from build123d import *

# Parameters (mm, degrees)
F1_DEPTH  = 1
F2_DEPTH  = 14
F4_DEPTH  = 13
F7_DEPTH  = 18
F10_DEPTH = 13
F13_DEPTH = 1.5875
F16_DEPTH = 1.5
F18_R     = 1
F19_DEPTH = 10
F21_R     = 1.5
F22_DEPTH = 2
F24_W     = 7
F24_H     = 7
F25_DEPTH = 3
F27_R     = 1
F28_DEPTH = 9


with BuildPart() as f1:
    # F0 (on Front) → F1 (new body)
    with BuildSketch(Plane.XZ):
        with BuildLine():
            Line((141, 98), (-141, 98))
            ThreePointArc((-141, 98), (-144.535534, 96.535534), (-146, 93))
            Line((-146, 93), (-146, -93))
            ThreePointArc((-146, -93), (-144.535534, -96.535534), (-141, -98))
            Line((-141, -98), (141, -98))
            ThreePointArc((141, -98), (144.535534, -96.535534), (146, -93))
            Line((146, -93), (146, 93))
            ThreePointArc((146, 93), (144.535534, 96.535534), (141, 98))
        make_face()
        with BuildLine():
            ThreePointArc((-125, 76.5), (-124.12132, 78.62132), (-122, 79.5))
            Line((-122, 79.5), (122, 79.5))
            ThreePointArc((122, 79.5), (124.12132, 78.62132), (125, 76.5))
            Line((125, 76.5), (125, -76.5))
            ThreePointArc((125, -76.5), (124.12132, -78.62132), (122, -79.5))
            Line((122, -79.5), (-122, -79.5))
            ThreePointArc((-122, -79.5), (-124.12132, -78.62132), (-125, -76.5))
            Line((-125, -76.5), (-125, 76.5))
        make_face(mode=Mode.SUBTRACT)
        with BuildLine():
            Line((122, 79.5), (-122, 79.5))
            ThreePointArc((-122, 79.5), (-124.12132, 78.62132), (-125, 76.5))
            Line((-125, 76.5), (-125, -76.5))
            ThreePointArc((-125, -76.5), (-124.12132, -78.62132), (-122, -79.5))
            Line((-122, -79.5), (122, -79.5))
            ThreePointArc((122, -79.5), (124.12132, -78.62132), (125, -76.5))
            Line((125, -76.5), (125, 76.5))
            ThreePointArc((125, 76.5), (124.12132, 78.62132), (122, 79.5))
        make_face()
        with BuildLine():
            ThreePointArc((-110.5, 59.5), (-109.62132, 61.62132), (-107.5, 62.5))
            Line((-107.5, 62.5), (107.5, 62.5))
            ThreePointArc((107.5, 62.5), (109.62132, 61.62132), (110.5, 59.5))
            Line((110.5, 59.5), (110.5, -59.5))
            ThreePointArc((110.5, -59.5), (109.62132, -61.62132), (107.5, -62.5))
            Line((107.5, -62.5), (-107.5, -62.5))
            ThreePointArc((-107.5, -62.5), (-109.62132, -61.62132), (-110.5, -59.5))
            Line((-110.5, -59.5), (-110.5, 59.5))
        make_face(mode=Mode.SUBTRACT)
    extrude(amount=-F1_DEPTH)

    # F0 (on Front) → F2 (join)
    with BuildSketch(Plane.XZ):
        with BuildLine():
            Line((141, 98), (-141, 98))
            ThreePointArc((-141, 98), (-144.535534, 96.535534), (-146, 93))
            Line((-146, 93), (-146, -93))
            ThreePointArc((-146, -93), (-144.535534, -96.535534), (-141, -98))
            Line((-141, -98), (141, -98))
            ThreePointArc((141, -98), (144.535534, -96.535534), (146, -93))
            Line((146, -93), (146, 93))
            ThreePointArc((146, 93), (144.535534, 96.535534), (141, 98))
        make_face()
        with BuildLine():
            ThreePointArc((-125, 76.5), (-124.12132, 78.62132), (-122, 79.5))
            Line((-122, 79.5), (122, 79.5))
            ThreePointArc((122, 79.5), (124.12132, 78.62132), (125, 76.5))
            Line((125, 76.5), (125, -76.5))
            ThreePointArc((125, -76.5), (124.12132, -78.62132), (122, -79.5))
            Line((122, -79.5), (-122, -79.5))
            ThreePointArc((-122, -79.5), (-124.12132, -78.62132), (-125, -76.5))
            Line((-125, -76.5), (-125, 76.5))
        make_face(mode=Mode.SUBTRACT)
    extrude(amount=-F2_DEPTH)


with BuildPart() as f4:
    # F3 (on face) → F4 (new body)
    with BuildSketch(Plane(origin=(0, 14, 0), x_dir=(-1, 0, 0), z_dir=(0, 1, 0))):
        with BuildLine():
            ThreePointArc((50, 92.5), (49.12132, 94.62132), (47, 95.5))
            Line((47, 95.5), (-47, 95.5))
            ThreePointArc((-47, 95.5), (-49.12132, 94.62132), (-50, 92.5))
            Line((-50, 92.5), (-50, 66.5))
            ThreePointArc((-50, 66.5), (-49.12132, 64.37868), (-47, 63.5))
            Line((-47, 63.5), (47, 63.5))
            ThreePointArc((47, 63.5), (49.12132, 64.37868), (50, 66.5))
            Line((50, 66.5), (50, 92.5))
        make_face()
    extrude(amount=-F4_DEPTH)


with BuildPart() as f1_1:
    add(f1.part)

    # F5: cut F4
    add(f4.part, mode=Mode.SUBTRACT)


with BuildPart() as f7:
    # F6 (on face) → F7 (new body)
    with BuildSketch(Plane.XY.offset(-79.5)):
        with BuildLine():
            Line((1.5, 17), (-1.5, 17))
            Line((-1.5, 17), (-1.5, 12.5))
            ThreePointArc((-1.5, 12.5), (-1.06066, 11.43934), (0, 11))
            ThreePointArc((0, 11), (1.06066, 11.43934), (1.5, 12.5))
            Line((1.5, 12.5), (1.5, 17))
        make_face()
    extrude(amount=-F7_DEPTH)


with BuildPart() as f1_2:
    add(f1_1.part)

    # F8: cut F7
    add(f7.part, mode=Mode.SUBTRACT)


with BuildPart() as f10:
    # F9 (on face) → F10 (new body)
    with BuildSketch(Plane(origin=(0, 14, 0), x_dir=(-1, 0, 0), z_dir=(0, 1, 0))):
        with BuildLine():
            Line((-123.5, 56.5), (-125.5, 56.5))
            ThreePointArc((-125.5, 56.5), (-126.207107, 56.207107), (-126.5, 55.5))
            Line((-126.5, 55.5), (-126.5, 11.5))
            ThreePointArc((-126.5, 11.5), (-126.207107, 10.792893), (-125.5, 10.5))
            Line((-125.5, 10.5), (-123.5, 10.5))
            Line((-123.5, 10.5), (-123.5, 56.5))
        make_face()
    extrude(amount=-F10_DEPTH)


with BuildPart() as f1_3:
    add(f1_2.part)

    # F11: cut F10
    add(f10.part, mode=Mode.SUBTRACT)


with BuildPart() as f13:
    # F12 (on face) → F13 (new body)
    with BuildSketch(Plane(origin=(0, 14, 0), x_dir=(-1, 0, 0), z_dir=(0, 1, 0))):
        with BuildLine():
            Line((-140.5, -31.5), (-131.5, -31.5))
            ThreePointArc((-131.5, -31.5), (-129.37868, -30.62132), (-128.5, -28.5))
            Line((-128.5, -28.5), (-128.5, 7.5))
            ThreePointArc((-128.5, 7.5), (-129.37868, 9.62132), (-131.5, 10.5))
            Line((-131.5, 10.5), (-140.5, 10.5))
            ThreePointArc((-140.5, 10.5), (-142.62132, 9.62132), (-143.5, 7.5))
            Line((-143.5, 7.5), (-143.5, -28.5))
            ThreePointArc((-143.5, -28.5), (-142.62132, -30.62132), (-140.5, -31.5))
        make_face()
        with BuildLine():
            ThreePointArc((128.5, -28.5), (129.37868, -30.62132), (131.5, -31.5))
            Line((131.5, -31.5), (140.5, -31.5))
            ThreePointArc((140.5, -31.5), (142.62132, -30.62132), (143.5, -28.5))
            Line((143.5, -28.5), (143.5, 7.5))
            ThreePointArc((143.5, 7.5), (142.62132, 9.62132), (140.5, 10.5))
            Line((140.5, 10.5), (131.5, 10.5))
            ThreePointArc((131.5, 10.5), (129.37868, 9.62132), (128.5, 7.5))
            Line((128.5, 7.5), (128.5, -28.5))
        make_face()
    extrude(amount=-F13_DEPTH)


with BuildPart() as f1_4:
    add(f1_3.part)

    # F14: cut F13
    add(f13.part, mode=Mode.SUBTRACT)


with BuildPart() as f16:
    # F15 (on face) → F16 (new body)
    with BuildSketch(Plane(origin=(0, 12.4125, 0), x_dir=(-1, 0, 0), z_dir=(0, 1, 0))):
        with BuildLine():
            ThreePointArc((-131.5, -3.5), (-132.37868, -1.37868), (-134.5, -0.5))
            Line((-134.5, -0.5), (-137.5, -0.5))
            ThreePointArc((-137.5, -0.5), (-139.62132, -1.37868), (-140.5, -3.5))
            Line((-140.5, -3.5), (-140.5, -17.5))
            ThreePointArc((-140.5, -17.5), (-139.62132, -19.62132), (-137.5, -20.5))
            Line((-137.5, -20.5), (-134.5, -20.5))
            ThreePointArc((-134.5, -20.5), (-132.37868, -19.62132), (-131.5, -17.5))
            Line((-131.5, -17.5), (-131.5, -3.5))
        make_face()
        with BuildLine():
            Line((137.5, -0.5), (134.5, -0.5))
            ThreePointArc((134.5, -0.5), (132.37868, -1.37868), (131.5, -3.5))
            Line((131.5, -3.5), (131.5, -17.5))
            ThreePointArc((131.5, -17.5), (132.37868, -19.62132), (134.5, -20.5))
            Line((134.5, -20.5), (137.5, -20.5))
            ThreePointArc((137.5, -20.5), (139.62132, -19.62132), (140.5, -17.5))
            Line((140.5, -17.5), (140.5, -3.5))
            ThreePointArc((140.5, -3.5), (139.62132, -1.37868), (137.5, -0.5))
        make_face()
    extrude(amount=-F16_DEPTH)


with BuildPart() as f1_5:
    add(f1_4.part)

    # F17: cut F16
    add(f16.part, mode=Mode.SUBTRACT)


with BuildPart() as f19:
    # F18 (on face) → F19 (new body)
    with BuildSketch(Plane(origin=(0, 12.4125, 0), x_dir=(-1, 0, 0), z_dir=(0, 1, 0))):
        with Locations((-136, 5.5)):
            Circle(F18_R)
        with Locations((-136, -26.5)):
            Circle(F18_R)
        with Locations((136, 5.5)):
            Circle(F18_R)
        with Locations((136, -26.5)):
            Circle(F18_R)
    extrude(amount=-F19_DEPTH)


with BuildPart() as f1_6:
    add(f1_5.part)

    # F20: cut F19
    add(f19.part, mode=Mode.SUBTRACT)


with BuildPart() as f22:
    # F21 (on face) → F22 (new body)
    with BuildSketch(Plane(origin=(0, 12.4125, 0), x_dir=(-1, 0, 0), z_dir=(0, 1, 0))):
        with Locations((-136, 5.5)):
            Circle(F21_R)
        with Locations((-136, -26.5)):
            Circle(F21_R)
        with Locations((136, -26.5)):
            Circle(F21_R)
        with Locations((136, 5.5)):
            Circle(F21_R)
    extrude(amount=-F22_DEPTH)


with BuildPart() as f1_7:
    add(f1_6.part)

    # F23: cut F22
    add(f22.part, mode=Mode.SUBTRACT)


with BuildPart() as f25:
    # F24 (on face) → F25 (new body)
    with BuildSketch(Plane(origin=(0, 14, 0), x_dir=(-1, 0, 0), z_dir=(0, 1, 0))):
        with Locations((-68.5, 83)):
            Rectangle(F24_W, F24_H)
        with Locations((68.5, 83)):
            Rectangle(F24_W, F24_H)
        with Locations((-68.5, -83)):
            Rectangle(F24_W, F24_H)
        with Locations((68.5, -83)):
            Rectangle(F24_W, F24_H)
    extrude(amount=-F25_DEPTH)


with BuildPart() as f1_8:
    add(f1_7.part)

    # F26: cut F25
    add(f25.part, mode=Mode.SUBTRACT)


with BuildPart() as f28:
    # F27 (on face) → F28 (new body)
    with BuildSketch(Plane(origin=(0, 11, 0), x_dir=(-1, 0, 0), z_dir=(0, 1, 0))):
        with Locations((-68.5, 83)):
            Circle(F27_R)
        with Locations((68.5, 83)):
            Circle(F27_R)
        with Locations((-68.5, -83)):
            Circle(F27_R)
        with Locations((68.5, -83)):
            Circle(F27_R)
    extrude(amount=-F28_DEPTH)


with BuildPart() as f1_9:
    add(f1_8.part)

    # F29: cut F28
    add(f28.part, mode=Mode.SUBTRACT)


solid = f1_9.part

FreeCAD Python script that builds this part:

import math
import FreeCAD as App
import Part
import Sketcher

V = App.Vector
Q = App.Units.Quantity

doc = App.newDocument("Part")
body = doc.addObject("PartDesign::Body", "Body")

sketch1 = doc.addObject("Sketcher::SketchObject", "Sketch")
body.addObject(sketch1)
sketch1.AttachmentSupport = (doc.XZ_Plane, [""])
sketch1.MapMode = "FlatFace"
sketch1.addGeometry([
    Part.LineSegment(V(141, 98, 0), V(-141, 98, 0)),
    Part.ArcOfCircle(Part.Circle(V(-141, 93, 0), V(0, 0, 1), 5), math.radians(90), math.radians(180)),
    Part.LineSegment(V(-146, 93, 0), V(-146, -93, 0)),
    Part.ArcOfCircle(Part.Circle(V(-141, -93, 0), V(0, 0, 1), 5), math.radians(180), math.radians(270)),
    Part.LineSegment(V(-141, -98, 0), V(141, -98, 0)),
    Part.ArcOfCircle(Part.Circle(V(141, -93, 0), V(0, 0, 1), 5), math.radians(-90), math.radians(0)),
    Part.LineSegment(V(146, -93, 0), V(146, 93, 0)),
    Part.ArcOfCircle(Part.Circle(V(141, 93, 0), V(0, 0, 1), 5), math.radians(0), math.radians(90)),
    Part.LineSegment(V(-110.5, -59.5, 0), V(-110.5, 59.5, 0)),
    Part.ArcOfCircle(Part.Circle(V(-107.5, 59.5, 0), V(0, 0, 1), 3), math.radians(90), math.radians(180)),
    Part.LineSegment(V(-107.5, 62.5, 0), V(107.5, 62.5, 0)),
    Part.ArcOfCircle(Part.Circle(V(107.5, 59.5, 0), V(0, 0, 1), 3), math.radians(0), math.radians(90)),
    Part.LineSegment(V(110.5, 59.5, 0), V(110.5, -59.5, 0)),
    Part.ArcOfCircle(Part.Circle(V(107.5, -59.5, 0), V(0, 0, 1), 3), math.radians(-90), math.radians(0)),
    Part.LineSegment(V(107.5, -62.5, 0), V(-107.5, -62.5, 0)),
    Part.ArcOfCircle(Part.Circle(V(-107.5, -59.5, 0), V(0, 0, 1), 3), math.radians(-180), math.radians(-90)),
], False)
sketch1.addConstraint([
    Sketcher.Constraint("Tangent", 0, 2, 1, 1),
    Sketcher.Constraint("Tangent", 1, 2, 2, 1),
    Sketcher.Constraint("Tangent", 2, 2, 3, 1),
    Sketcher.Constraint("Tangent", 3, 2, 4, 1),
    Sketcher.Constraint("Tangent", 4, 2, 5, 1),
    Sketcher.Constraint("Tangent", 5, 2, 6, 1),
    Sketcher.Constraint("Tangent", 6, 2, 7, 1),
    Sketcher.Constraint("Tangent", 7, 2, 0, 1),
    Sketcher.Constraint("Tangent", 8, 2, 9, 2),
    Sketcher.Constraint("Tangent", 9, 1, 10, 1),
    Sketcher.Constraint("Tangent", 10, 2, 11, 2),
    Sketcher.Constraint("Tangent", 11, 1, 12, 1),
    Sketcher.Constraint("Tangent", 12, 2, 13, 2),
    Sketcher.Constraint("Tangent", 13, 1, 14, 1),
    Sketcher.Constraint("Tangent", 14, 2, 15, 2),
    Sketcher.Constraint("Tangent", 15, 1, 8, 1),
    Sketcher.Constraint("Horizontal", 0),
    Sketcher.Constraint("Vertical", 2),
    Sketcher.Constraint("Horizontal", 4),
    Sketcher.Constraint("Vertical", 6),
    Sketcher.Constraint("Vertical", 8),
    Sketcher.Constraint("Horizontal", 10),
    Sketcher.Constraint("Vertical", 12),
    Sketcher.Constraint("Horizontal", 14),
    Sketcher.Constraint("Equal", 1, 3),
    Sketcher.Constraint("Equal", 3, 5),
    Sketcher.Constraint("Equal", 5, 7),
    Sketcher.Constraint("Equal", 9, 11),
    Sketcher.Constraint("Equal", 11, 13),
    Sketcher.Constraint("Equal", 13, 15),
    Sketcher.Constraint("Symmetric", 1, 3, 5, 3, -1, 1),
    Sketcher.Constraint("Symmetric", 9, 3, 13, 3, -1, 1),
    Sketcher.Constraint("Radius", 1, Q("5 mm")),
    Sketcher.Constraint("Radius", 9, Q("3.000001 mm")),
    Sketcher.Constraint("DistanceX", 0, 2, 0, 1, Q("282 mm")),
    Sketcher.Constraint("DistanceX", 10, 1, 10, 2, Q("215 mm")),
    Sketcher.Constraint("DistanceY", 2, 2, 2, 1, Q("186 mm")),
    Sketcher.Constraint("DistanceY", 8, 1, 8, 2, Q("119 mm")),
])
pad1 = doc.addObject("PartDesign::Pad", "Pad")
body.addObject(pad1)
pad1.Profile = sketch1
pad1.Length = 1
pad1.Reversed = True

sketch2 = doc.addObject("Sketcher::SketchObject", "Sketch001")
body.addObject(sketch2)
sketch2.AttachmentSupport = (doc.XZ_Plane, [""])
sketch2.MapMode = "FlatFace"
sketch2.addGeometry([
    Part.LineSegment(V(141, 98, 0), V(-141, 98, 0)),
    Part.ArcOfCircle(Part.Circle(V(-141, 93, 0), V(0, 0, 1), 5), math.radians(90), math.radians(180)),
    Part.LineSegment(V(-146, 93, 0), V(-146, -93, 0)),
    Part.ArcOfCircle(Part.Circle(V(-141, -93, 0), V(0, 0, 1), 5), math.radians(180), math.radians(270)),
    Part.LineSegment(V(-141, -98, 0), V(141, -98, 0)),
    Part.ArcOfCircle(Part.Circle(V(141, -93, 0), V(0, 0, 1), 5), math.radians(-90), math.radians(0)),
    Part.LineSegment(V(146, -93, 0), V(146, 93, 0)),
    Part.ArcOfCircle(Part.Circle(V(141, 93, 0), V(0, 0, 1), 5), math.radians(0), math.radians(90)),
    Part.LineSegment(V(-125, -76.5, 0), V(-125, 76.5, 0)),
    Part.ArcOfCircle(Part.Circle(V(-122, 76.5, 0), V(0, 0, 1), 3), math.radians(90), math.radians(180)),
    Part.LineSegment(V(-122, 79.5, 0), V(122, 79.5, 0)),
    Part.ArcOfCircle(Part.Circle(V(122, 76.5, 0), V(0, 0, 1), 3), math.radians(0), math.radians(90)),
    Part.LineSegment(V(125, 76.5, 0), V(125, -76.5, 0)),
    Part.ArcOfCircle(Part.Circle(V(122, -76.5, 0), V(0, 0, 1), 3), math.radians(-90), math.radians(0)),
    Part.LineSegment(V(122, -79.5, 0), V(-122, -79.5, 0)),
    Part.ArcOfCircle(Part.Circle(V(-122, -76.5, 0), V(0, 0, 1), 3), math.radians(-180), math.radians(-90)),
], False)
sketch2.addConstraint([
    Sketcher.Constraint("Tangent", 0, 2, 1, 1),
    Sketcher.Constraint("Tangent", 1, 2, 2, 1),
    Sketcher.Constraint("Tangent", 2, 2, 3, 1),
    Sketcher.Constraint("Tangent", 3, 2, 4, 1),
    Sketcher.Constraint("Tangent", 4, 2, 5, 1),
    Sketcher.Constraint("Tangent", 5, 2, 6, 1),
    Sketcher.Constraint("Tangent", 6, 2, 7, 1),
    Sketcher.Constraint("Tangent", 7, 2, 0, 1),
    Sketcher.Constraint("Tangent", 8, 2, 9, 2),
    Sketcher.Constraint("Tangent", 9, 1, 10, 1),
    Sketcher.Constraint("Tangent", 10, 2, 11, 2),
    Sketcher.Constraint("Tangent", 11, 1, 12, 1),
    Sketcher.Constraint("Tangent", 12, 2, 13, 2),
    Sketcher.Constraint("Tangent", 13, 1, 14, 1),
    Sketcher.Constraint("Tangent", 14, 2, 15, 2),
    Sketcher.Constraint("Tangent", 15, 1, 8, 1),
    Sketcher.Constraint("Horizontal", 0),
    Sketcher.Constraint("Vertical", 2),
    Sketcher.Constraint("Horizontal", 4),
    Sketcher.Constraint("Vertical", 6),
    Sketcher.Constraint("Vertical", 8),
    Sketcher.Constraint("Horizontal", 10),
    Sketcher.Constraint("Vertical", 12),
    Sketcher.Constraint("Horizontal", 14),
    Sketcher.Constraint("Equal", 1, 3),
    Sketcher.Constraint("Equal", 3, 5),
    Sketcher.Constraint("Equal", 5, 7),
    Sketcher.Constraint("Equal", 9, 11),
    Sketcher.Constraint("Equal", 11, 13),
    Sketcher.Constraint("Equal", 13, 15),
    Sketcher.Constraint("Symmetric", 1, 3, 5, 3, -1, 1),
    Sketcher.Constraint("Symmetric", 9, 3, 13, 3, -1, 1),
    Sketcher.Constraint("Radius", 1, Q("5 mm")),
    Sketcher.Constraint("Radius", 9, Q("3.000001 mm")),
    Sketcher.Constraint("DistanceX", 0, 2, 0, 1, Q("282 mm")),
    Sketcher.Constraint("DistanceX", 10, 1, 10, 2, Q("244 mm")),
    Sketcher.Constraint("DistanceY", 2, 2, 2, 1, Q("186 mm")),
    Sketcher.Constraint("DistanceY", 8, 1, 8, 2, Q("153 mm")),
])
pad2 = doc.addObject("PartDesign::Pad", "Pad001")
body.addObject(pad2)
pad2.Profile = sketch2
pad2.Length = 14
pad2.Reversed = True
body2 = doc.addObject("PartDesign::Body", "Body001")

sketch3 = doc.addObject("Sketcher::SketchObject", "Sketch002")
body2.addObject(sketch3)
sketch3.AttachmentSupport = (doc.getObject("XZ_Plane001"), [""])
sketch3.MapMode = "FlatFace"
sketch3.AttachmentOffset = App.Placement(V(0, 0, -14), App.Rotation())
sketch3.addGeometry([
    Part.ArcOfCircle(Part.Circle(V(-47, 92.5, 0), V(0, 0, 1), 3), math.radians(90), math.radians(180)),
    Part.LineSegment(V(-47, 95.5, 0), V(47, 95.5, 0)),
    Part.ArcOfCircle(Part.Circle(V(47, 92.5, 0), V(0, 0, 1), 3), math.radians(0), math.radians(90)),
    Part.LineSegment(V(50, 92.5, 0), V(50, 66.5, 0)),
    Part.ArcOfCircle(Part.Circle(V(47, 66.5, 0), V(0, 0, 1), 3), math.radians(-90), math.radians(0)),
    Part.LineSegment(V(47, 63.5, 0), V(-47, 63.5, 0)),
    Part.ArcOfCircle(Part.Circle(V(-47, 66.5, 0), V(0, 0, 1), 3), math.radians(-180), math.radians(-90)),
    Part.LineSegment(V(-50, 66.5, 0), V(-50, 92.5, 0)),
], False)
sketch3.addConstraint([
    Sketcher.Constraint("Tangent", 0, 1, 1, 1),
    Sketcher.Constraint("Tangent", 1, 2, 2, 2),
    Sketcher.Constraint("Tangent", 2, 1, 3, 1),
    Sketcher.Constraint("Tangent", 3, 2, 4, 2),
    Sketcher.Constraint("Tangent", 4, 1, 5, 1),
    Sketcher.Constraint("Tangent", 5, 2, 6, 2),
    Sketcher.Constraint("Tangent", 6, 1, 7, 1),
    Sketcher.Constraint("Tangent", 7, 2, 0, 2),
    Sketcher.Constraint("Horizontal", 1),
    Sketcher.Constraint("Vertical", 3),
    Sketcher.Constraint("Horizontal", 5),
    Sketcher.Constraint("Vertical", 7),
    Sketcher.Constraint("Equal", 0, 2),
    Sketcher.Constraint("Equal", 2, 4),
    Sketcher.Constraint("Equal", 4, 6),
    Sketcher.Constraint("Radius", 0, Q("3.000001 mm")),
    Sketcher.Constraint("DistanceX", 1, 1, 1, 2, Q("94 mm")),
    Sketcher.Constraint("DistanceY", 3, 2, 3, 1, Q("26 mm")),
    Sketcher.Constraint("DistanceX", 0, 3, -1, 1, Q("46.999999 mm")),
    Sketcher.Constraint("DistanceY", -1, 1, 0, 3, Q("92.499999 mm")),
])
pad3 = doc.addObject("PartDesign::Pad", "Pad002")
body2.addObject(pad3)
pad3.Profile = sketch3
pad3.Length = 13
doc.recompute()

boolean = doc.addObject("PartDesign::Boolean", "Boolean")
body.addObject(boolean)
boolean.Type = "Cut"
boolean.addObjects([body2])
body3 = doc.addObject("PartDesign::Body", "Body002")

sketch4 = doc.addObject("Sketcher::SketchObject", "Sketch003")
body3.addObject(sketch4)
sketch4.AttachmentSupport = (doc.getObject("XY_Plane002"), [""])
sketch4.MapMode = "FlatFace"
sketch4.AttachmentOffset = App.Placement(V(0, 0, -79.5), App.Rotation())
sketch4.addGeometry([
    Part.LineSegment(V(1.5, 17, 0), V(-1.5, 17, 0)),
    Part.LineSegment(V(-1.5, 17, 0), V(-1.5, 12.5, 0)),
    Part.ArcOfCircle(Part.Circle(V(0, 12.5, 0), V(0, 0, 1), 1.5), math.radians(-180), math.radians(-90)),
    Part.ArcOfCircle(Part.Circle(V(0, 12.5, 0), V(0, 0, 1), 1.5), math.radians(-90), math.radians(0)),
    Part.LineSegment(V(1.5, 12.5, 0), V(1.5, 17, 0)),
], False)
sketch4.addConstraint([
    Sketcher.Constraint("Coincident", 0, 2, 1, 1),
    Sketcher.Constraint("Tangent", 1, 2, 2, 1),
    Sketcher.Constraint("Tangent", 2, 2, 3, 1),
    Sketcher.Constraint("Tangent", 3, 2, 4, 1),
    Sketcher.Constraint("Coincident", 4, 2, 0, 1),
    Sketcher.Constraint("Horizontal", 0),
    Sketcher.Constraint("Vertical", 1),
    Sketcher.Constraint("Vertical", 4),
    Sketcher.Constraint("Equal", 2, 3),
    Sketcher.Constraint("PointOnObject", 2, 3, -2),
    Sketcher.Constraint("PointOnObject", 2, 2, -2),
    Sketcher.Constraint("Radius", 2, Q("1.500001 mm")),
    Sketcher.Constraint("DistanceY", 1, 2, 1, 1, Q("4.5 mm")),
    Sketcher.Constraint("DistanceY", -1, 1, 0, 2, Q("17 mm")),
])
pad4 = doc.addObject("PartDesign::Pad", "Pad003")
body3.addObject(pad4)
pad4.Profile = sketch4
pad4.Length = 18
pad4.Reversed = True
doc.recompute()

boolean2 = doc.addObject("PartDesign::Boolean", "Boolean001")
body.addObject(boolean2)
boolean2.Type = "Cut"
boolean2.addObjects([body3])
body4 = doc.addObject("PartDesign::Body", "Body003")

sketch5 = doc.addObject("Sketcher::SketchObject", "Sketch004")
body4.addObject(sketch5)
sketch5.AttachmentSupport = (doc.getObject("XZ_Plane003"), [""])
sketch5.MapMode = "FlatFace"
sketch5.AttachmentOffset = App.Placement(V(0, 0, -14), App.Rotation())
sketch5.addGeometry([
    Part.LineSegment(V(123.5, 56.5, 0), V(125.5, 56.5, 0)),
    Part.ArcOfCircle(Part.Circle(V(125.5, 55.5, 0), V(0, 0, 1), 1), math.radians(0), math.radians(90)),
    Part.LineSegment(V(126.5, 55.5, 0), V(126.5, 11.5, 0)),
    Part.ArcOfCircle(Part.Circle(V(125.5, 11.5, 0), V(0, 0, 1), 1), math.radians(-90), math.radians(0)),
    Part.LineSegment(V(125.5, 10.5, 0), V(123.5, 10.5, 0)),
    Part.LineSegment(V(123.5, 10.5, 0), V(123.5, 56.5, 0)),
], False)
sketch5.addConstraint([
    Sketcher.Constraint("Tangent", 0, 2, 1, 2),
    Sketcher.Constraint("Tangent", 1, 1, 2, 1),
    Sketcher.Constraint("Tangent", 2, 2, 3, 2),
    Sketcher.Constraint("Tangent", 3, 1, 4, 1),
    Sketcher.Constraint("Coincident", 4, 2, 5, 1),
    Sketcher.Constraint("Coincident", 5, 2, 0, 1),
    Sketcher.Constraint("Horizontal", 0),
    Sketcher.Constraint("Vertical", 2),
    Sketcher.Constraint("Horizontal", 4),
    Sketcher.Constraint("Vertical", 5),
    Sketcher.Constraint("Equal", 1, 3),
    Sketcher.Constraint("Radius", 1, Q("0.999999 mm")),
    Sketcher.Constraint("DistanceX", 0, 1, 0, 2, Q("2 mm")),
    Sketcher.Constraint("DistanceY", 2, 2, 2, 1, Q("44 mm")),
    Sketcher.Constraint("DistanceX", -1, 1, 1, 3, Q("125.500001 mm")),
    Sketcher.Constraint("DistanceY", -1, 1, 1, 3, Q("55.500001 mm")),
])
pad5 = doc.addObject("PartDesign::Pad", "Pad004")
body4.addObject(pad5)
pad5.Profile = sketch5
pad5.Length = 13
doc.recompute()

boolean3 = doc.addObject("PartDesign::Boolean", "Boolean002")
body.addObject(boolean3)
boolean3.Type = "Cut"
boolean3.addObjects([body4])
body5 = doc.addObject("PartDesign::Body", "Body004")
body5.AllowCompound = True

sketch6 = doc.addObject("Sketcher::SketchObject", "Sketch005")
body5.addObject(sketch6)
sketch6.AttachmentSupport = (doc.getObject("XZ_Plane004"), [""])
sketch6.MapMode = "FlatFace"
sketch6.AttachmentOffset = App.Placement(V(0, 0, -14), App.Rotation())
sketch6.addGeometry([
    Part.LineSegment(V(140.5, -31.5, 0), V(131.5, -31.5, 0)),
    Part.ArcOfCircle(Part.Circle(V(131.5, -28.5, 0), V(0, 0, 1), 3), math.radians(-180), math.radians(-90)),
    Part.LineSegment(V(128.5, -28.5, 0), V(128.5, 7.5, 0)),
    Part.ArcOfCircle(Part.Circle(V(131.5, 7.5, 0), V(0, 0, 1), 3), math.radians(90), math.radians(180)),
    Part.LineSegment(V(131.5, 10.5, 0), V(140.5, 10.5, 0)),
    Part.ArcOfCircle(Part.Circle(V(140.5, 7.5, 0), V(0, 0, 1), 3), math.radians(0), math.radians(90)),
    Part.LineSegment(V(143.5, 7.5, 0), V(143.5, -28.5, 0)),
    Part.ArcOfCircle(Part.Circle(V(140.5, -28.5, 0), V(0, 0, 1), 3), math.radians(-90), math.radians(0)),
    Part.ArcOfCircle(Part.Circle(V(-131.5, -28.5, 0), V(0, 0, 1), 3), math.radians(-90), math.radians(0)),
    Part.LineSegment(V(-131.5, -31.5, 0), V(-140.5, -31.5, 0)),
    Part.ArcOfCircle(Part.Circle(V(-140.5, -28.5, 0), V(0, 0, 1), 3), math.radians(-180), math.radians(-90)),
    Part.LineSegment(V(-143.5, -28.5, 0), V(-143.5, 7.5, 0)),
    Part.ArcOfCircle(Part.Circle(V(-140.5, 7.5, 0), V(0, 0, 1), 3), math.radians(90), math.radians(180)),
    Part.LineSegment(V(-140.5, 10.5, 0), V(-131.5, 10.5, 0)),
    Part.ArcOfCircle(Part.Circle(V(-131.5, 7.5, 0), V(0, 0, 1), 3), math.radians(0), math.radians(90)),
    Part.LineSegment(V(-128.5, 7.5, 0), V(-128.5, -28.5, 0)),
], False)
sketch6.addConstraint([
    Sketcher.Constraint("Tangent", 0, 2, 1, 2),
    Sketcher.Constraint("Tangent", 1, 1, 2, 1),
    Sketcher.Constraint("Tangent", 2, 2, 3, 2),
    Sketcher.Constraint("Tangent", 3, 1, 4, 1),
    Sketcher.Constraint("Tangent", 4, 2, 5, 2),
    Sketcher.Constraint("Tangent", 5, 1, 6, 1),
    Sketcher.Constraint("Tangent", 6, 2, 7, 2),
    Sketcher.Constraint("Tangent", 7, 1, 0, 1),
    Sketcher.Constraint("Tangent", 8, 1, 9, 1),
    Sketcher.Constraint("Tangent", 9, 2, 10, 2),
    Sketcher.Constraint("Tangent", 10, 1, 11, 1),
    Sketcher.Constraint("Tangent", 11, 2, 12, 2),
    Sketcher.Constraint("Tangent", 12, 1, 13, 1),
    Sketcher.Constraint("Tangent", 13, 2, 14, 2),
    Sketcher.Constraint("Tangent", 14, 1, 15, 1),
    Sketcher.Constraint("Tangent", 15, 2, 8, 2),
    Sketcher.Constraint("Horizontal", 0),
    Sketcher.Constraint("Vertical", 2),
    Sketcher.Constraint("Horizontal", 4),
    Sketcher.Constraint("Vertical", 6),
    Sketcher.Constraint("Horizontal", 9),
    Sketcher.Constraint("Vertical", 11),
    Sketcher.Constraint("Horizontal", 13),
    Sketcher.Constraint("Vertical", 15),
    Sketcher.Constraint("Equal", 1, 3),
    Sketcher.Constraint("Equal", 3, 5),
    Sketcher.Constraint("Equal", 5, 7),
    Sketcher.Constraint("Equal", 7, 8),
    Sketcher.Constraint("Equal", 8, 10),
    Sketcher.Constraint("Equal", 10, 12),
    Sketcher.Constraint("Equal", 12, 14),
    Sketcher.Constraint("Symmetric", 1, 3, 8, 3, -2),
    Sketcher.Constraint("Symmetric", 5, 3, 12, 3, -2),
    Sketcher.Constraint("Radius", 1, Q("3.000001 mm")),
    Sketcher.Constraint("DistanceX", 0, 2, 0, 1, Q("9 mm")),
    Sketcher.Constraint("DistanceY", 2, 1, 2, 2, Q("36 mm")),
    Sketcher.Constraint("DistanceX", 8, 3, 7, 3, Q("272 mm")),
    Sketcher.Constraint("DistanceY", 1, 3, -1, 1, Q("28.499999 mm")),
])
pad6 = doc.addObject("PartDesign::Pad", "Pad005")
body5.addObject(pad6)
pad6.Profile = sketch6
pad6.Length = 1.5875
doc.recompute()

boolean4 = doc.addObject("PartDesign::Boolean", "Boolean003")
body.addObject(boolean4)
boolean4.Type = "Cut"
boolean4.addObjects([body5])
body6 = doc.addObject("PartDesign::Body", "Body005")
body6.AllowCompound = True

sketch7 = doc.addObject("Sketcher::SketchObject", "Sketch006")
body6.addObject(sketch7)
sketch7.AttachmentSupport = (doc.getObject("XZ_Plane005"), [""])
sketch7.MapMode = "FlatFace"
sketch7.AttachmentOffset = App.Placement(V(0, 0, -12.4125), App.Rotation())
sketch7.addGeometry([
    Part.ArcOfCircle(Part.Circle(V(134.5, -3.5, 0), V(0, 0, 1), 3), math.radians(90), math.radians(180)),
    Part.LineSegment(V(134.5, -0.5, 0), V(137.5, -0.5, 0)),
    Part.ArcOfCircle(Part.Circle(V(137.5, -3.5, 0), V(0, 0, 1), 3), math.radians(0), math.radians(90)),
    Part.LineSegment(V(140.5, -3.5, 0), V(140.5, -17.5, 0)),
    Part.ArcOfCircle(Part.Circle(V(137.5, -17.5, 0), V(0, 0, 1), 3), math.radians(-90), math.radians(0)),
    Part.LineSegment(V(137.5, -20.5, 0), V(134.5, -20.5, 0)),
    Part.ArcOfCircle(Part.Circle(V(134.5, -17.5, 0), V(0, 0, 1), 3), math.radians(-180), math.radians(-90)),
    Part.LineSegment(V(131.5, -17.5, 0), V(131.5, -3.5, 0)),
    Part.LineSegment(V(-137.5, -0.5, 0), V(-134.5, -0.5, 0)),
    Part.ArcOfCircle(Part.Circle(V(-134.5, -3.5, 0), V(0, 0, 1), 3), math.radians(0), math.radians(90)),
    Part.LineSegment(V(-131.5, -3.5, 0), V(-131.5, -17.5, 0)),
    Part.ArcOfCircle(Part.Circle(V(-134.5, -17.5, 0), V(0, 0, 1), 3), math.radians(-90), math.radians(0)),
    Part.LineSegment(V(-134.5, -20.5, 0), V(-137.5, -20.5, 0)),
    Part.ArcOfCircle(Part.Circle(V(-137.5, -17.5, 0), V(0, 0, 1), 3), math.radians(-180), math.radians(-90)),
    Part.LineSegment(V(-140.5, -17.5, 0), V(-140.5, -3.5, 0)),
    Part.ArcOfCircle(Part.Circle(V(-137.5, -3.5, 0), V(0, 0, 1), 3), math.radians(90), math.radians(180)),
], False)
sketch7.addConstraint([
    Sketcher.Constraint("Tangent", 0, 1, 1, 1),
    Sketcher.Constraint("Tangent", 1, 2, 2, 2),
    Sketcher.Constraint("Tangent", 2, 1, 3, 1),
    Sketcher.Constraint("Tangent", 3, 2, 4, 2),
    Sketcher.Constraint("Tangent", 4, 1, 5, 1),
    Sketcher.Constraint("Tangent", 5, 2, 6, 2),
    Sketcher.Constraint("Tangent", 6, 1, 7, 1),
    Sketcher.Constraint("Tangent", 7, 2, 0, 2),
    Sketcher.Constraint("Tangent", 8, 2, 9, 2),
    Sketcher.Constraint("Tangent", 9, 1, 10, 1),
    Sketcher.Constraint("Tangent", 10, 2, 11, 2),
    Sketcher.Constraint("Tangent", 11, 1, 12, 1),
    Sketcher.Constraint("Tangent", 12, 2, 13, 2),
    Sketcher.Constraint("Tangent", 13, 1, 14, 1),
    Sketcher.Constraint("Tangent", 14, 2, 15, 2),
    Sketcher.Constraint("Tangent", 15, 1, 8, 1),
    Sketcher.Constraint("Horizontal", 1),
    Sketcher.Constraint("Vertical", 3),
    Sketcher.Constraint("Horizontal", 5),
    Sketcher.Constraint("Vertical", 7),
    Sketcher.Constraint("Horizontal", 8),
    Sketcher.Constraint("Vertical", 10),
    Sketcher.Constraint("Horizontal", 12),
    Sketcher.Constraint("Vertical", 14),
    Sketcher.Constraint("Equal", 0, 2),
    Sketcher.Constraint("Equal", 2, 4),
    Sketcher.Constraint("Equal", 4, 6),
    Sketcher.Constraint("Equal", 6, 9),
    Sketcher.Constraint("Equal", 9, 11),
    Sketcher.Constraint("Equal", 11, 13),
    Sketcher.Constraint("Equal", 13, 15),
    Sketcher.Constraint("Symmetric", 0, 3, 9, 3, -2),
    Sketcher.Constraint("Symmetric", 4, 3, 13, 3, -2),
    Sketcher.Constraint("Radius", 0, Q("3.000001 mm")),
    Sketcher.Constraint("DistanceX", 1, 1, 1, 2, Q("3 mm")),
    Sketcher.Constraint("DistanceY", 3, 2, 3, 1, Q("14 mm")),
    Sketcher.Constraint("DistanceX", 9, 3, 2, 3, Q("272 mm")),
    Sketcher.Constraint("DistanceY", 0, 3, -1, 1, Q("3.500001 mm")),
])
pad7 = doc.addObject("PartDesign::Pad", "Pad006")
body6.addObject(pad7)
pad7.Profile = sketch7
pad7.Length = 1.5
doc.recompute()

boolean5 = doc.addObject("PartDesign::Boolean", "Boolean004")
body.addObject(boolean5)
boolean5.Type = "Cut"
boolean5.addObjects([body6])
body7 = doc.addObject("PartDesign::Body", "Body006")
body7.AllowCompound = True

sketch8 = doc.addObject("Sketcher::SketchObject", "Sketch007")
body7.addObject(sketch8)
sketch8.AttachmentSupport = (doc.getObject("XZ_Plane006"), [""])
sketch8.MapMode = "FlatFace"
sketch8.AttachmentOffset = App.Placement(V(0, 0, -12.4125), App.Rotation())
sketch8.addGeometry([
    Part.Circle(V(136, 5.5, 0), V(0, 0, 1), 1),
    Part.Circle(V(136, -26.5, 0), V(0, 0, 1), 1),
    Part.Circle(V(-136, 5.5, 0), V(0, 0, 1), 1),
    Part.Circle(V(-136, -26.5, 0), V(0, 0, 1), 1),
], False)
sketch8.addConstraint([
    Sketcher.Constraint("Equal", 0, 1),
    Sketcher.Constraint("Equal", 1, 2),
    Sketcher.Constraint("Equal", 2, 3),
    Sketcher.Constraint("Symmetric", 0, 3, 2, 3, -2),
    Sketcher.Constraint("Symmetric", 1, 3, 3, 3, -2),
    Sketcher.Constraint("Vertical", 0, 3, 1, 3),
    Sketcher.Constraint("Diameter", 0, Q("2 mm")),
    Sketcher.Constraint("DistanceX", -1, 1, 0, 3, Q("136 mm")),
    Sketcher.Constraint("DistanceY", 1, 3, 0, 3, Q("32 mm")),
    Sketcher.Constraint("DistanceY", -1, 1, 0, 3, Q("5.5 mm")),
])
pad8 = doc.addObject("PartDesign::Pad", "Pad007")
body7.addObject(pad8)
pad8.Profile = sketch8
pad8.Length = 10
doc.recompute()

boolean6 = doc.addObject("PartDesign::Boolean", "Boolean005")
body.addObject(boolean6)
boolean6.Type = "Cut"
boolean6.addObjects([body7])
body8 = doc.addObject("PartDesign::Body", "Body007")
body8.AllowCompound = True

sketch9 = doc.addObject("Sketcher::SketchObject", "Sketch008")
body8.addObject(sketch9)
sketch9.AttachmentSupport = (doc.getObject("XZ_Plane007"), [""])
sketch9.MapMode = "FlatFace"
sketch9.AttachmentOffset = App.Placement(V(0, 0, -12.4125), App.Rotation())
sketch9.addGeometry([
    Part.Circle(V(136, 5.5, 0), V(0, 0, 1), 1.5),
    Part.Circle(V(136, -26.5, 0), V(0, 0, 1), 1.5),
    Part.Circle(V(-136, -26.5, 0), V(0, 0, 1), 1.5),
    Part.Circle(V(-136, 5.5, 0), V(0, 0, 1), 1.5),
], False)
sketch9.addConstraint([
    Sketcher.Constraint("Equal", 0, 1),
    Sketcher.Constraint("Equal", 1, 2),
    Sketcher.Constraint("Equal", 2, 3),
    Sketcher.Constraint("Symmetric", 1, 3, 2, 3, -2),
    Sketcher.Constraint("Symmetric", 0, 3, 3, 3, -2),
    Sketcher.Constraint("Vertical", 0, 3, 1, 3),
    Sketcher.Constraint("Diameter", 0, Q("3 mm")),
    Sketcher.Constraint("DistanceX", -1, 1, 0, 3, Q("136 mm")),
    Sketcher.Constraint("DistanceY", 1, 3, 0, 3, Q("32 mm")),
    Sketcher.Constraint("DistanceY", -1, 1, 0, 3, Q("5.5 mm")),
])
pad9 = doc.addObject("PartDesign::Pad", "Pad008")
body8.addObject(pad9)
pad9.Profile = sketch9
pad9.Length = 2
doc.recompute()

boolean7 = doc.addObject("PartDesign::Boolean", "Boolean006")
body.addObject(boolean7)
boolean7.Type = "Cut"
boolean7.addObjects([body8])
body9 = doc.addObject("PartDesign::Body", "Body008")
body9.AllowCompound = True

sketch10 = doc.addObject("Sketcher::SketchObject", "Sketch009")
body9.addObject(sketch10)
sketch10.AttachmentSupport = (doc.getObject("XZ_Plane008"), [""])
sketch10.MapMode = "FlatFace"
sketch10.AttachmentOffset = App.Placement(V(0, 0, -14), App.Rotation())
sketch10.addGeometry([
    Part.LineSegment(V(72, 86, 0), V(72, 80, 0)),
    Part.LineSegment(V(72, 80, 0), V(65, 80, 0)),
    Part.LineSegment(V(65, 80, 0), V(65, 86, 0)),
    Part.LineSegment(V(65, 86, 0), V(72, 86, 0)),
    Part.LineSegment(V(-65, 86, 0), V(-65, 80, 0)),
    Part.LineSegment(V(-65, 80, 0), V(-72, 80, 0)),
    Part.LineSegment(V(-72, 80, 0), V(-72, 86, 0)),
    Part.LineSegment(V(-72, 86, 0), V(-65, 86, 0)),
    Part.LineSegment(V(72, -80, 0), V(72, -86, 0)),
    Part.LineSegment(V(72, -86, 0), V(65, -86, 0)),
    Part.LineSegment(V(65, -86, 0), V(65, -80, 0)),
    Part.LineSegment(V(65, -80, 0), V(72, -80, 0)),
    Part.LineSegment(V(-65, -80, 0), V(-65, -86, 0)),
    Part.LineSegment(V(-65, -86, 0), V(-72, -86, 0)),
    Part.LineSegment(V(-72, -86, 0), V(-72, -80, 0)),
    Part.LineSegment(V(-72, -80, 0), V(-65, -80, 0)),
], False)
sketch10.addConstraint([
    Sketcher.Constraint("Coincident", 0, 2, 1, 1),
    Sketcher.Constraint("Coincident", 1, 2, 2, 1),
    Sketcher.Constraint("Coincident", 2, 2, 3, 1),
    Sketcher.Constraint("Coincident", 3, 2, 0, 1),
    Sketcher.Constraint("Coincident", 4, 2, 5, 1),
    Sketcher.Constraint("Coincident", 5, 2, 6, 1),
    Sketcher.Constraint("Coincident", 6, 2, 7, 1),
    Sketcher.Constraint("Coincident", 7, 2, 4, 1),
    Sketcher.Constraint("Coincident", 8, 2, 9, 1),
    Sketcher.Constraint("Coincident", 9, 2, 10, 1),
    Sketcher.Constraint("Coincident", 10, 2, 11, 1),
    Sketcher.Constraint("Coincident", 11, 2, 8, 1),
    Sketcher.Constraint("Coincident", 12, 2, 13, 1),
    Sketcher.Constraint("Coincident", 13, 2, 14, 1),
    Sketcher.Constraint("Coincident", 14, 2, 15, 1),
    Sketcher.Constraint("Coincident", 15, 2, 12, 1),
    Sketcher.Constraint("Vertical", 0),
    Sketcher.Constraint("Horizontal", 1),
    Sketcher.Constraint("Vertical", 2),
    Sketcher.Constraint("Horizontal", 3),
    Sketcher.Constraint("Vertical", 4),
    Sketcher.Constraint("Horizontal", 5),
    Sketcher.Constraint("Vertical", 6),
    Sketcher.Constraint("Horizontal", 7),
    Sketcher.Constraint("Vertical", 8),
    Sketcher.Constraint("Horizontal", 9),
    Sketcher.Constraint("Vertical", 10),
    Sketcher.Constraint("Horizontal", 11),
    Sketcher.Constraint("Vertical", 12),
    Sketcher.Constraint("Horizontal", 13),
    Sketcher.Constraint("Vertical", 14),
    Sketcher.Constraint("Horizontal", 15),
    Sketcher.Constraint("Symmetric", 6, 2, 8, 2, -1, 1),
    Sketcher.Constraint("Symmetric", 4, 2, 10, 2, -1, 1),
    Sketcher.Constraint("Symmetric", 2, 2, 12, 2, -1, 1),
    Sketcher.Constraint("Symmetric", 0, 2, 14, 2, -1, 1),
    Sketcher.Constraint("Symmetric", 1, 2, 4, 2, -2),
    Sketcher.Constraint("Symmetric", 3, 2, 6, 2, -2),
    Sketcher.Constraint("Equal", 15, 0),
    Sketcher.Constraint("DistanceX", 1, 2, 1, 1, Q("7 mm")),
    Sketcher.Constraint("DistanceX", -1, 1, 0, 2, Q("72 mm")),
    Sketcher.Constraint("DistanceY", 8, 2, 0, 2, Q("166 mm")),
])
pad10 = doc.addObject("PartDesign::Pad", "Pad009")
body9.addObject(pad10)
pad10.Profile = sketch10
pad10.Length = 3
doc.recompute()

boolean8 = doc.addObject("PartDesign::Boolean", "Boolean007")
body.addObject(boolean8)
boolean8.Type = "Cut"
boolean8.addObjects([body9])
body10 = doc.addObject("PartDesign::Body", "Body009")
body10.AllowCompound = True

sketch11 = doc.addObject("Sketcher::SketchObject", "Sketch010")
body10.addObject(sketch11)
sketch11.AttachmentSupport = (doc.getObject("XZ_Plane009"), [""])
sketch11.MapMode = "FlatFace"
sketch11.AttachmentOffset = App.Placement(V(0, 0, -11), App.Rotation())
sketch11.addGeometry([
    Part.Circle(V(68.5, 83, 0), V(0, 0, 1), 1),
    Part.Circle(V(-68.5, 83, 0), V(0, 0, 1), 1),
    Part.Circle(V(68.5, -83, 0), V(0, 0, 1), 1),
    Part.Circle(V(-68.5, -83, 0), V(0, 0, 1), 1),
], False)
sketch11.addConstraint([
    Sketcher.Constraint("Equal", 0, 1),
    Sketcher.Constraint("Equal", 1, 2),
    Sketcher.Constraint("Equal", 2, 3),
    Sketcher.Constraint("Symmetric", 1, 3, 2, 3, -1, 1),
    Sketcher.Constraint("Symmetric", 0, 3, 3, 3, -1, 1),
    Sketcher.Constraint("Symmetric", 0, 3, 1, 3, -2),
    Sketcher.Constraint("Diameter", 0, Q("2 mm")),
    Sketcher.Constraint("DistanceY", -1, 1, 0, 3, Q("83 mm")),
    Sketcher.Constraint("DistanceX", 1, 3, 0, 3, Q("137 mm")),
])
pad11 = doc.addObject("PartDesign::Pad", "Pad010")
body10.addObject(pad11)
pad11.Profile = sketch11
pad11.Length = 9
doc.recompute()

boolean9 = doc.addObject("PartDesign::Boolean", "Boolean008")
body.addObject(boolean9)
boolean9.Type = "Cut"
boolean9.addObjects([body10])

doc.recompute()
